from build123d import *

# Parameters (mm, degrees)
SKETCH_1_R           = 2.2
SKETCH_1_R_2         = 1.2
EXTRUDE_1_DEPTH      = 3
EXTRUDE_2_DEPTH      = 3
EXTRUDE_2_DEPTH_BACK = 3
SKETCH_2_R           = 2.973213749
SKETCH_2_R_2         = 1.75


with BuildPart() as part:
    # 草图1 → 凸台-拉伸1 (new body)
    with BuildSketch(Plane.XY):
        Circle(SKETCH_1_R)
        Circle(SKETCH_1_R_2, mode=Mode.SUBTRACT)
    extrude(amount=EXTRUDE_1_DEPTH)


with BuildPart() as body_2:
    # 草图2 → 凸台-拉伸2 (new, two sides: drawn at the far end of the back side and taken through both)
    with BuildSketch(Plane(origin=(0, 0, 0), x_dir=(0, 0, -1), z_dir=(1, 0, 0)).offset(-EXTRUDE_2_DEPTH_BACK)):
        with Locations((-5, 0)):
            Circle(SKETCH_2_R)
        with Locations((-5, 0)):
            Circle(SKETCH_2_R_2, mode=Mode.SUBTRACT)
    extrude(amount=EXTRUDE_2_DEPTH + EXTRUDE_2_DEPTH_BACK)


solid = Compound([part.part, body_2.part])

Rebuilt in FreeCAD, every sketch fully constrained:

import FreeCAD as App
import Part
import Sketcher

V = App.Vector
Q = App.Units.Quantity

doc = App.newDocument("Part")
params = doc.addObject("Spreadsheet::Sheet", "Params")
for row, (alias, value) in enumerate([
    ("sketch1_diameter", "4.4 mm"),
    ("sketch1_diameter2", "2.4 mm"),
    ("pad1_length", "3 mm"),
    ("sketch2_diameter", "3.5 mm"),
    ("pad2_length", "3 mm"),
    ("pad2_length2", "3 mm"),
], start=1):
    params.set(f"A{row}", alias)
    params.set(f"B{row}", "=" + value)
    params.setAlias(f"B{row}", alias)

body = doc.addObject("PartDesign::Body", "Body")

# Sketch on XY plane
sketch1 = body.newObject("Sketcher::SketchObject", "Sketch")
sketch1.AttachmentSupport = (doc.getObject("XY_Plane"), [""])
sketch1.MapMode = "FlatFace"
sketch1.addGeometry(Part.Circle(V(0, 0, 0), V(0, 0, 1), 2.2), False)
sketch1.addGeometry(Part.Circle(V(0, 0, 0), V(0, 0, 1), 1.2), False)
sketch1.addConstraint(Sketcher.Constraint("Coincident", 0, 3, -1, 1))
sketch1.addConstraint(Sketcher.Constraint("Coincident", 1, 3, -1, 1))
sketch1.addConstraint(Sketcher.Constraint("Diameter", 0, Q("4.4 mm")))
sketch1.addConstraint(Sketcher.Constraint("Diameter", 1, Q("2.4 mm")))
sketch1.setExpression("Constraints[2]", "Params.sketch1_diameter")
sketch1.setExpression("Constraints[3]", "Params.sketch1_diameter2")
pad1 = body.newObject("PartDesign::Pad", "Pad")
pad1.Profile = sketch1
pad1.setExpression("Length", "Params.pad1_length")
body2 = doc.addObject("PartDesign::Body", "Body001")

# Sketch on YZ plane
sketch2 = body2.newObject("Sketcher::SketchObject", "Sketch001")
sketch2.AttachmentSupport = (doc.getObject("YZ_Plane001"), [""])
sketch2.MapMode = "FlatFace"
sketch2.addGeometry(Part.Circle(V(0, 5, 0), V(0, 0, 1), 3), False)
sketch2.addGeometry(Part.Circle(V(0, 5, 0), V(0, 0, 1), 1.8), False)
sketch2.addConstraint(Sketcher.Constraint("Coincident", 1, 3, 0, 3))
sketch2.addConstraint(Sketcher.Constraint("PointOnObject", 0, 3, -2))
sketch2.addConstraint(Sketcher.Constraint("Diameter", 1, Q("3.5 mm")))
sketch2.addConstraint(Sketcher.Constraint("DistanceY", -1, 1, 0, 3, Q("5 mm")))
sketch2.addConstraint(Sketcher.Constraint("Diameter", 0, Q("5.946427 mm")))
sketch2.setExpression("Constraints[2]", "Params.sketch2_diameter")
pad2 = body2.newObject("PartDesign::Pad", "Pad001")
pad2.Profile = sketch2
pad2.Type = "TwoLengths"
pad2.setExpression("Length", "Params.pad2_length")
pad2.setExpression("Length2", "Params.pad2_length2")

doc.recompute()
